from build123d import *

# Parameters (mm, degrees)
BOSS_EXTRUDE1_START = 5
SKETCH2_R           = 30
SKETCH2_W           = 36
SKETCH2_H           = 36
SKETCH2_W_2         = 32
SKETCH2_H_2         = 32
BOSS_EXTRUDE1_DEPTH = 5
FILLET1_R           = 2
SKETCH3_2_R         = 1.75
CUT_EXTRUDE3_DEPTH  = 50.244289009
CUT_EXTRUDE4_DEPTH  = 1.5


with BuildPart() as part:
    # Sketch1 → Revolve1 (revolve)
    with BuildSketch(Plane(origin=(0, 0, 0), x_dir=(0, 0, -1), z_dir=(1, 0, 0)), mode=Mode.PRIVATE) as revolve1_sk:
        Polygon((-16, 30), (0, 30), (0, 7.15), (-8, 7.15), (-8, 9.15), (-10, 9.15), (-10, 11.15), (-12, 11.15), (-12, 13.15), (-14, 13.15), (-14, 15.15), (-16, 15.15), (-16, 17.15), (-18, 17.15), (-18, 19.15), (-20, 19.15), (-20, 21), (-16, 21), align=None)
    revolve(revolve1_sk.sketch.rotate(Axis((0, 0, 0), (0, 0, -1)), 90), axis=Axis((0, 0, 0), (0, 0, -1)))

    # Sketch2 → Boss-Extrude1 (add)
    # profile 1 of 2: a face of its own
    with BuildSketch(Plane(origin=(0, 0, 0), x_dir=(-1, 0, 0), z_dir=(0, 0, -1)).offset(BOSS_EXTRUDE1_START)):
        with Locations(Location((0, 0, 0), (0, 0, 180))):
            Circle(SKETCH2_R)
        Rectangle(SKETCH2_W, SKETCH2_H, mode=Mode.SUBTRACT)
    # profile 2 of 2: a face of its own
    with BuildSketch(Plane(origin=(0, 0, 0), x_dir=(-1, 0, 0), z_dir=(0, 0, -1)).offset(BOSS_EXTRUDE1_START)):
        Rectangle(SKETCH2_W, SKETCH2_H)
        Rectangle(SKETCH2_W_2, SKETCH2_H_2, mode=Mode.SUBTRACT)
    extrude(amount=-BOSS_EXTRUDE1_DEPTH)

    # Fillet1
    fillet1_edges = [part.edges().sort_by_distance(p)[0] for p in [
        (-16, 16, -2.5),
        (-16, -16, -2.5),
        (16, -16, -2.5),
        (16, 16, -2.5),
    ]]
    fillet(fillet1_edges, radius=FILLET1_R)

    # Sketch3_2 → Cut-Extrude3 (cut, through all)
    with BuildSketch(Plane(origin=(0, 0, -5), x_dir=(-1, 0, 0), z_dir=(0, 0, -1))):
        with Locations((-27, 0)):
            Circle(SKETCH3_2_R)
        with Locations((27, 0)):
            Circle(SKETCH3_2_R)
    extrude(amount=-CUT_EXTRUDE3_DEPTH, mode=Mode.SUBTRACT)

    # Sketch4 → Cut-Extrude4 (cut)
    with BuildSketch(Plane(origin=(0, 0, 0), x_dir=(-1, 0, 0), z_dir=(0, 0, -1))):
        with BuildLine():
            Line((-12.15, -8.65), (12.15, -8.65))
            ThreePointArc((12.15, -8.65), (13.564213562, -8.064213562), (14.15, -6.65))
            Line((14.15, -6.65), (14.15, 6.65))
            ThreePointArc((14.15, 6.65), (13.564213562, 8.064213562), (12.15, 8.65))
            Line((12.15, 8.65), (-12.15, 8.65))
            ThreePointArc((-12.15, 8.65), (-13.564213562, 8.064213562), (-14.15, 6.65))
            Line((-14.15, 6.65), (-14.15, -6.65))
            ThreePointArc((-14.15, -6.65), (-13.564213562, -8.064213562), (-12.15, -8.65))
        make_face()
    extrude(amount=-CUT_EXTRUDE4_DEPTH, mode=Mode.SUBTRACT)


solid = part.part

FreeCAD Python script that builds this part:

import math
import FreeCAD as App
import Part
import Sketcher


def edges_at(feature, points):
    """Names of the edges that pass closest to the given points."""
    edges = feature.Shape.Edges
    near = lambda p: min(range(len(edges)), key=lambda i: edges[i].distToShape(Part.Vertex(*p))[0])
    return sorted({f"Edge{near(p) + 1}" for p in points})

doc = App.newDocument("Part")
params = doc.addObject("Spreadsheet::Sheet", "Params")
for row, (alias, value) in enumerate([
    ("sketch1_width", "9 mm"),
    ("sketch1_width2", "2 mm"),
    ("sketch1_height", "16 mm"),
    ("sketch1_width3", "1.85 mm"),
    ("revolution_angle", "360 deg"),
    ("sketch2_diameter", "60 mm"),
    ("sketch2_width", "32 mm"),
    ("pad1_length", "5 mm"),
    ("fillet_radius", "2 mm"),
    ("sketch3_diameter", "3.5 mm"),
    ("sketch4_radius", "2 mm"),
    ("sketch4_width", "24.3 mm"),
    ("sketch4_height", "13.3 mm"),
    ("pocket2_length", "1.5 mm"),
], start=1):
    params.set(f"A{row}", alias)
    params.set(f"B{row}", "=" + value)
    params.setAlias(f"B{row}", alias)

body = doc.addObject("PartDesign::Body", "Body")

# Sketch on YZ plane
sketch1 = body.newObject("Sketcher::SketchObject", "Sketch")
sketch1.AttachmentSupport = (doc.getObject("YZ_Plane"), [""])
sketch1.MapMode = "FlatFace"
sketch1.addGeometry([
    Part.LineSegment(App.Vector(30, 0, 0), App.Vector(30, 16, 0)),  # 0
    Part.LineSegment(App.Vector(30, 16, 0), App.Vector(21, 16, 0)),  # 1
    Part.LineSegment(App.Vector(21, 16, 0), App.Vector(21, 20, 0)),  # 2
    Part.LineSegment(App.Vector(21, 20, 0), App.Vector(19.15, 20, 0)),  # 3
    Part.LineSegment(App.Vector(19.15, 20, 0), App.Vector(19.15, 18, 0)),  # 4
    Part.LineSegment(App.Vector(19.15, 18, 0), App.Vector(17.15, 18, 0)),  # 5
    Part.LineSegment(App.Vector(17.15, 18, 0), App.Vector(17.15, 16, 0)),  # 6
    Part.LineSegment(App.Vector(17.15, 16, 0), App.Vector(15.15, 16, 0)),  # 7
    Part.LineSegment(App.Vector(15.15, 16, 0), App.Vector(15.15, 14, 0)),  # 8
    Part.LineSegment(App.Vector(15.15, 14, 0), App.Vector(13.15, 14, 0)),  # 9
    Part.LineSegment(App.Vector(13.15, 14, 0), App.Vector(13.15, 12, 0)),  # 10
    Part.LineSegment(App.Vector(13.15, 12, 0), App.Vector(11.15, 12, 0)),  # 11
    Part.LineSegment(App.Vector(11.15, 12, 0), App.Vector(11.15, 10, 0)),  # 12
    Part.LineSegment(App.Vector(11.15, 10, 0), App.Vector(9.15, 10, 0)),  # 13
    Part.LineSegment(App.Vector(9.15, 10, 0), App.Vector(9.15, 8, 0)),  # 14
    Part.LineSegment(App.Vector(9.15, 8, 0), App.Vector(7.15, 8, 0)),  # 15
    Part.LineSegment(App.Vector(7.15, 8, 0), App.Vector(7.15, 0, 0)),  # 16
    Part.LineSegment(App.Vector(7.15, 0, 0), App.Vector(30, 0, 0)),  # 17
], False)
sketch1.addConstraint([
    Sketcher.Constraint("Coincident", 0, 2, 1, 1),
    Sketcher.Constraint("Coincident", 1, 2, 2, 1),
    Sketcher.Constraint("Coincident", 2, 2, 3, 1),
    Sketcher.Constraint("Coincident", 3, 2, 4, 1),
    Sketcher.Constraint("Coincident", 4, 2, 5, 1),
    Sketcher.Constraint("Coincident", 5, 2, 6, 1),
    Sketcher.Constraint("Coincident", 6, 2, 7, 1),
    Sketcher.Constraint("Coincident", 7, 2, 8, 1),
    Sketcher.Constraint("Coincident", 8, 2, 9, 1),
    Sketcher.Constraint("Coincident", 9, 2, 10, 1),
    Sketcher.Constraint("Coincident", 10, 2, 11, 1),
    Sketcher.Constraint("Coincident", 11, 2, 12, 1),
    Sketcher.Constraint("Coincident", 12, 2, 13, 1),
    Sketcher.Constraint("Coincident", 13, 2, 14, 1),
    Sketcher.Constraint("Coincident", 14, 2, 15, 1),
    Sketcher.Constraint("Coincident", 15, 2, 16, 1),
    Sketcher.Constraint("Coincident", 16, 2, 17, 1),
    Sketcher.Constraint("Coincident", 17, 2, 0, 1),
    Sketcher.Constraint("Vertical", 0),
    Sketcher.Constraint("Horizontal", 1),
    Sketcher.Constraint("Vertical", 2),
    Sketcher.Constraint("Horizontal", 3),
    Sketcher.Constraint("Vertical", 4),
    Sketcher.Constraint("Horizontal", 5),
    Sketcher.Constraint("Vertical", 6),
    Sketcher.Constraint("Horizontal", 7),
    Sketcher.Constraint("Vertical", 8),
    Sketcher.Constraint("Horizontal", 9),
    Sketcher.Constraint("Vertical", 10),
    Sketcher.Constraint("Horizontal", 11),
    Sketcher.Constraint("Vertical", 12),
    Sketcher.Constraint("Horizontal", 13),
    Sketcher.Constraint("Vertical", 14),
    Sketcher.Constraint("Horizontal", 15),
    Sketcher.Constraint("Vertical", 16),
    Sketcher.Constraint("Horizontal", 17),
    Sketcher.Constraint("PointOnObject", 16, 2, -1),
    Sketcher.Constraint("Horizontal", 1, 2, 6, 2),
    Sketcher.Constraint("Equal", 5, 7),
    Sketcher.Constraint("Equal", 7, 9),
    Sketcher.Constraint("Equal", 9, 11),
    Sketcher.Constraint("Equal", 11, 13),
    Sketcher.Constraint("Equal", 13, 15),
    Sketcher.Constraint("Equal", 15, 4),
    Sketcher.Constraint("Equal", 4, 6),
    Sketcher.Constraint("Equal", 6, 8),
    Sketcher.Constraint("Equal", 8, 10),
    Sketcher.Constraint("Equal", 10, 12),
    Sketcher.Constraint("Equal", 12, 14),
    Sketcher.Constraint("DistanceX", 1, 2, 1, 1, 9.0),
    Sketcher.Constraint("DistanceX", 5, 2, 5, 1, 2.0),
    Sketcher.Constraint("DistanceY", 0, 1, 0, 2, 16.0),
    Sketcher.Constraint("DistanceX", -1, 1, 0, 2, 30.0),
    Sketcher.Constraint("DistanceX", 3, 2, 3, 1, 1.85),
])
sketch1.setExpression("Constraints[49]", "Params.sketch1_width")
sketch1.setExpression("Constraints[50]", "Params.sketch1_width2")
sketch1.setExpression("Constraints[51]", "Params.sketch1_height")
sketch1.setExpression("Constraints[53]", "Params.sketch1_width3")
revolution = body.newObject("PartDesign::Revolution", "Revolution")
revolution.Profile = sketch1
revolution.ReferenceAxis = (sketch1, ["V_Axis"])
revolution.setExpression("Angle", "Params.revolution_angle")

# Sketch on XY plane
sketch2 = body.newObject("Sketcher::SketchObject", "Sketch001")
sketch2.AttachmentSupport = (doc.getObject("XY_Plane"), [""])
sketch2.MapMode = "FlatFace"
sketch2.AttachmentOffset = App.Placement(App.Vector(0, 0, -5), App.Rotation())
sketch2.addGeometry([
    Part.Circle(App.Vector(0, 0, 0), App.Vector(0, 0, 1), 30),  # 0
    Part.LineSegment(App.Vector(-16, -16, 0), App.Vector(16, -16, 0)),  # 1
    Part.LineSegment(App.Vector(16, -16, 0), App.Vector(16, 16, 0)),  # 2
    Part.LineSegment(App.Vector(16, 16, 0), App.Vector(-16, 16, 0)),  # 3
    Part.LineSegment(App.Vector(-16, 16, 0), App.Vector(-16, -16, 0)),  # 4
], False)
sketch2.addConstraint([
    Sketcher.Constraint("Coincident", 1, 2, 2, 1),
    Sketcher.Constraint("Coincident", 2, 2, 3, 1),
    Sketcher.Constraint("Coincident", 3, 2, 4, 1),
    Sketcher.Constraint("Coincident", 4, 2, 1, 1),
    Sketcher.Constraint("Horizontal", 1),
    Sketcher.Constraint("Vertical", 2),
    Sketcher.Constraint("Horizontal", 3),
    Sketcher.Constraint("Vertical", 4),
    Sketcher.Constraint("Coincident", 0, 3, -1, 1),
    Sketcher.Constraint("Symmetric", 1, 2, 3, 2, -1, 1),
    Sketcher.Constraint("Equal", 3, 2),
    Sketcher.Constraint("Diameter", 0, 60.0),
    Sketcher.Constraint("DistanceX", 1, 1, 1, 2, 32.0),
])
sketch2.setExpression("Constraints[11]", "Params.sketch2_diameter")
sketch2.setExpression("Constraints[12]", "Params.sketch2_width")
pad1 = body.newObject("PartDesign::Pad", "Pad")
pad1.Profile = sketch2
pad1.setExpression("Length", "Params.pad1_length")
doc.recompute()

fillet = body.newObject("PartDesign::Fillet", "Fillet")
fillet.Base = (pad1, edges_at(pad1, [
    (-16, 16, -2.5),
    (-16, -16, -2.5),
    (16, -16, -2.5),
    (16, 16, -2.5),
]))
fillet.setExpression("Radius", "Params.fillet_radius")

# Sketch on XY plane
sketch3 = body.newObject("Sketcher::SketchObject", "Sketch002")
sketch3.AttachmentSupport = (doc.getObject("XY_Plane"), [""])
sketch3.MapMode = "FlatFace"
sketch3.AttachmentOffset = App.Placement(App.Vector(0, 0, -5), App.Rotation())
sketch3.addGeometry([
    Part.Circle(App.Vector(27, 0, 0), App.Vector(0, 0, 1), 1.75),
    Part.Circle(App.Vector(-27, 0, 0), App.Vector(0, 0, 1), 1.75),
], False)
sketch3.addConstraint([
    Sketcher.Constraint("Equal", 0, 1),
    Sketcher.Constraint("Symmetric", 0, 3, 1, 3, -1, 1),
    Sketcher.Constraint("PointOnObject", 0, 3, -1),
    Sketcher.Constraint("Diameter", 0, 3.5),
    Sketcher.Constraint("DistanceX", -1, 1, 0, 3, 27.0),
])
sketch3.setExpression("Constraints[3]", "Params.sketch3_diameter")
pocket1 = body.newObject("PartDesign::Pocket", "Pocket")
pocket1.Profile = sketch3
pocket1.Type = "ThroughAll"
pocket1.Reversed = True

# Sketch on XY plane
sketch4 = body.newObject("Sketcher::SketchObject", "Sketch003")
sketch4.AttachmentSupport = (doc.getObject("XY_Plane"), [""])
sketch4.MapMode = "FlatFace"
sketch4.addGeometry([
    Part.LineSegment(App.Vector(12.15, -8.65, 0), App.Vector(-12.15, -8.65, 0)),  # 0
    Part.ArcOfCircle(Part.Circle(App.Vector(-12.15, -6.65, 0), App.Vector(0, 0, 1), 2), math.radians(-180), math.radians(-90)),  # 1
    Part.LineSegment(App.Vector(-14.15, -6.65, 0), App.Vector(-14.15, 6.65, 0)),  # 2
    Part.ArcOfCircle(Part.Circle(App.Vector(-12.15, 6.65, 0), App.Vector(0, 0, 1), 2), math.radians(90), math.radians(180)),  # 3
    Part.LineSegment(App.Vector(-12.15, 8.65, 0), App.Vector(12.15, 8.65, 0)),  # 4
    Part.ArcOfCircle(Part.Circle(App.Vector(12.15, 6.65, 0), App.Vector(0, 0, 1), 2), math.radians(0), math.radians(90)),  # 5
    Part.LineSegment(App.Vector(14.15, 6.65, 0), App.Vector(14.15, -6.65, 0)),  # 6
    Part.ArcOfCircle(Part.Circle(App.Vector(12.15, -6.65, 0), App.Vector(0, 0, 1), 2), math.radians(-90), math.radians(0)),  # 7
], False)
sketch4.addConstraint([
    Sketcher.Constraint("Tangent", 0, 2, 1, 2),
    Sketcher.Constraint("Tangent", 1, 1, 2, 1),
    Sketcher.Constraint("Tangent", 2, 2, 3, 2),
    Sketcher.Constraint("Tangent", 3, 1, 4, 1),
    Sketcher.Constraint("Tangent", 4, 2, 5, 2),
    Sketcher.Constraint("Tangent", 5, 1, 6, 1),
    Sketcher.Constraint("Tangent", 6, 2, 7, 2),
    Sketcher.Constraint("Tangent", 7, 1, 0, 1),
    Sketcher.Constraint("Horizontal", 0),
    Sketcher.Constraint("Vertical", 2),
    Sketcher.Constraint("Horizontal", 4),
    Sketcher.Constraint("Vertical", 6),
    Sketcher.Constraint("Equal", 1, 3),
    Sketcher.Constraint("Equal", 3, 5),
    Sketcher.Constraint("Equal", 5, 7),
    Sketcher.Constraint("Symmetric", 1, 3, 5, 3, -1, 1),
    Sketcher.Constraint("Radius", 1, 2.0),
    Sketcher.Constraint("DistanceX", 0, 2, 0, 1, 24.3),
    Sketcher.Constraint("DistanceY", 2, 1, 2, 2, 13.3),
])
sketch4.setExpression("Constraints[16]", "Params.sketch4_radius")
sketch4.setExpression("Constraints[17]", "Params.sketch4_width")
sketch4.setExpression("Constraints[18]", "Params.sketch4_height")
pocket2 = body.newObject("PartDesign::Pocket", "Pocket001")
pocket2.Profile = sketch4
pocket2.setExpression("Length", "Params.pocket2_length")
pocket2.Reversed = True

doc.recompute()
